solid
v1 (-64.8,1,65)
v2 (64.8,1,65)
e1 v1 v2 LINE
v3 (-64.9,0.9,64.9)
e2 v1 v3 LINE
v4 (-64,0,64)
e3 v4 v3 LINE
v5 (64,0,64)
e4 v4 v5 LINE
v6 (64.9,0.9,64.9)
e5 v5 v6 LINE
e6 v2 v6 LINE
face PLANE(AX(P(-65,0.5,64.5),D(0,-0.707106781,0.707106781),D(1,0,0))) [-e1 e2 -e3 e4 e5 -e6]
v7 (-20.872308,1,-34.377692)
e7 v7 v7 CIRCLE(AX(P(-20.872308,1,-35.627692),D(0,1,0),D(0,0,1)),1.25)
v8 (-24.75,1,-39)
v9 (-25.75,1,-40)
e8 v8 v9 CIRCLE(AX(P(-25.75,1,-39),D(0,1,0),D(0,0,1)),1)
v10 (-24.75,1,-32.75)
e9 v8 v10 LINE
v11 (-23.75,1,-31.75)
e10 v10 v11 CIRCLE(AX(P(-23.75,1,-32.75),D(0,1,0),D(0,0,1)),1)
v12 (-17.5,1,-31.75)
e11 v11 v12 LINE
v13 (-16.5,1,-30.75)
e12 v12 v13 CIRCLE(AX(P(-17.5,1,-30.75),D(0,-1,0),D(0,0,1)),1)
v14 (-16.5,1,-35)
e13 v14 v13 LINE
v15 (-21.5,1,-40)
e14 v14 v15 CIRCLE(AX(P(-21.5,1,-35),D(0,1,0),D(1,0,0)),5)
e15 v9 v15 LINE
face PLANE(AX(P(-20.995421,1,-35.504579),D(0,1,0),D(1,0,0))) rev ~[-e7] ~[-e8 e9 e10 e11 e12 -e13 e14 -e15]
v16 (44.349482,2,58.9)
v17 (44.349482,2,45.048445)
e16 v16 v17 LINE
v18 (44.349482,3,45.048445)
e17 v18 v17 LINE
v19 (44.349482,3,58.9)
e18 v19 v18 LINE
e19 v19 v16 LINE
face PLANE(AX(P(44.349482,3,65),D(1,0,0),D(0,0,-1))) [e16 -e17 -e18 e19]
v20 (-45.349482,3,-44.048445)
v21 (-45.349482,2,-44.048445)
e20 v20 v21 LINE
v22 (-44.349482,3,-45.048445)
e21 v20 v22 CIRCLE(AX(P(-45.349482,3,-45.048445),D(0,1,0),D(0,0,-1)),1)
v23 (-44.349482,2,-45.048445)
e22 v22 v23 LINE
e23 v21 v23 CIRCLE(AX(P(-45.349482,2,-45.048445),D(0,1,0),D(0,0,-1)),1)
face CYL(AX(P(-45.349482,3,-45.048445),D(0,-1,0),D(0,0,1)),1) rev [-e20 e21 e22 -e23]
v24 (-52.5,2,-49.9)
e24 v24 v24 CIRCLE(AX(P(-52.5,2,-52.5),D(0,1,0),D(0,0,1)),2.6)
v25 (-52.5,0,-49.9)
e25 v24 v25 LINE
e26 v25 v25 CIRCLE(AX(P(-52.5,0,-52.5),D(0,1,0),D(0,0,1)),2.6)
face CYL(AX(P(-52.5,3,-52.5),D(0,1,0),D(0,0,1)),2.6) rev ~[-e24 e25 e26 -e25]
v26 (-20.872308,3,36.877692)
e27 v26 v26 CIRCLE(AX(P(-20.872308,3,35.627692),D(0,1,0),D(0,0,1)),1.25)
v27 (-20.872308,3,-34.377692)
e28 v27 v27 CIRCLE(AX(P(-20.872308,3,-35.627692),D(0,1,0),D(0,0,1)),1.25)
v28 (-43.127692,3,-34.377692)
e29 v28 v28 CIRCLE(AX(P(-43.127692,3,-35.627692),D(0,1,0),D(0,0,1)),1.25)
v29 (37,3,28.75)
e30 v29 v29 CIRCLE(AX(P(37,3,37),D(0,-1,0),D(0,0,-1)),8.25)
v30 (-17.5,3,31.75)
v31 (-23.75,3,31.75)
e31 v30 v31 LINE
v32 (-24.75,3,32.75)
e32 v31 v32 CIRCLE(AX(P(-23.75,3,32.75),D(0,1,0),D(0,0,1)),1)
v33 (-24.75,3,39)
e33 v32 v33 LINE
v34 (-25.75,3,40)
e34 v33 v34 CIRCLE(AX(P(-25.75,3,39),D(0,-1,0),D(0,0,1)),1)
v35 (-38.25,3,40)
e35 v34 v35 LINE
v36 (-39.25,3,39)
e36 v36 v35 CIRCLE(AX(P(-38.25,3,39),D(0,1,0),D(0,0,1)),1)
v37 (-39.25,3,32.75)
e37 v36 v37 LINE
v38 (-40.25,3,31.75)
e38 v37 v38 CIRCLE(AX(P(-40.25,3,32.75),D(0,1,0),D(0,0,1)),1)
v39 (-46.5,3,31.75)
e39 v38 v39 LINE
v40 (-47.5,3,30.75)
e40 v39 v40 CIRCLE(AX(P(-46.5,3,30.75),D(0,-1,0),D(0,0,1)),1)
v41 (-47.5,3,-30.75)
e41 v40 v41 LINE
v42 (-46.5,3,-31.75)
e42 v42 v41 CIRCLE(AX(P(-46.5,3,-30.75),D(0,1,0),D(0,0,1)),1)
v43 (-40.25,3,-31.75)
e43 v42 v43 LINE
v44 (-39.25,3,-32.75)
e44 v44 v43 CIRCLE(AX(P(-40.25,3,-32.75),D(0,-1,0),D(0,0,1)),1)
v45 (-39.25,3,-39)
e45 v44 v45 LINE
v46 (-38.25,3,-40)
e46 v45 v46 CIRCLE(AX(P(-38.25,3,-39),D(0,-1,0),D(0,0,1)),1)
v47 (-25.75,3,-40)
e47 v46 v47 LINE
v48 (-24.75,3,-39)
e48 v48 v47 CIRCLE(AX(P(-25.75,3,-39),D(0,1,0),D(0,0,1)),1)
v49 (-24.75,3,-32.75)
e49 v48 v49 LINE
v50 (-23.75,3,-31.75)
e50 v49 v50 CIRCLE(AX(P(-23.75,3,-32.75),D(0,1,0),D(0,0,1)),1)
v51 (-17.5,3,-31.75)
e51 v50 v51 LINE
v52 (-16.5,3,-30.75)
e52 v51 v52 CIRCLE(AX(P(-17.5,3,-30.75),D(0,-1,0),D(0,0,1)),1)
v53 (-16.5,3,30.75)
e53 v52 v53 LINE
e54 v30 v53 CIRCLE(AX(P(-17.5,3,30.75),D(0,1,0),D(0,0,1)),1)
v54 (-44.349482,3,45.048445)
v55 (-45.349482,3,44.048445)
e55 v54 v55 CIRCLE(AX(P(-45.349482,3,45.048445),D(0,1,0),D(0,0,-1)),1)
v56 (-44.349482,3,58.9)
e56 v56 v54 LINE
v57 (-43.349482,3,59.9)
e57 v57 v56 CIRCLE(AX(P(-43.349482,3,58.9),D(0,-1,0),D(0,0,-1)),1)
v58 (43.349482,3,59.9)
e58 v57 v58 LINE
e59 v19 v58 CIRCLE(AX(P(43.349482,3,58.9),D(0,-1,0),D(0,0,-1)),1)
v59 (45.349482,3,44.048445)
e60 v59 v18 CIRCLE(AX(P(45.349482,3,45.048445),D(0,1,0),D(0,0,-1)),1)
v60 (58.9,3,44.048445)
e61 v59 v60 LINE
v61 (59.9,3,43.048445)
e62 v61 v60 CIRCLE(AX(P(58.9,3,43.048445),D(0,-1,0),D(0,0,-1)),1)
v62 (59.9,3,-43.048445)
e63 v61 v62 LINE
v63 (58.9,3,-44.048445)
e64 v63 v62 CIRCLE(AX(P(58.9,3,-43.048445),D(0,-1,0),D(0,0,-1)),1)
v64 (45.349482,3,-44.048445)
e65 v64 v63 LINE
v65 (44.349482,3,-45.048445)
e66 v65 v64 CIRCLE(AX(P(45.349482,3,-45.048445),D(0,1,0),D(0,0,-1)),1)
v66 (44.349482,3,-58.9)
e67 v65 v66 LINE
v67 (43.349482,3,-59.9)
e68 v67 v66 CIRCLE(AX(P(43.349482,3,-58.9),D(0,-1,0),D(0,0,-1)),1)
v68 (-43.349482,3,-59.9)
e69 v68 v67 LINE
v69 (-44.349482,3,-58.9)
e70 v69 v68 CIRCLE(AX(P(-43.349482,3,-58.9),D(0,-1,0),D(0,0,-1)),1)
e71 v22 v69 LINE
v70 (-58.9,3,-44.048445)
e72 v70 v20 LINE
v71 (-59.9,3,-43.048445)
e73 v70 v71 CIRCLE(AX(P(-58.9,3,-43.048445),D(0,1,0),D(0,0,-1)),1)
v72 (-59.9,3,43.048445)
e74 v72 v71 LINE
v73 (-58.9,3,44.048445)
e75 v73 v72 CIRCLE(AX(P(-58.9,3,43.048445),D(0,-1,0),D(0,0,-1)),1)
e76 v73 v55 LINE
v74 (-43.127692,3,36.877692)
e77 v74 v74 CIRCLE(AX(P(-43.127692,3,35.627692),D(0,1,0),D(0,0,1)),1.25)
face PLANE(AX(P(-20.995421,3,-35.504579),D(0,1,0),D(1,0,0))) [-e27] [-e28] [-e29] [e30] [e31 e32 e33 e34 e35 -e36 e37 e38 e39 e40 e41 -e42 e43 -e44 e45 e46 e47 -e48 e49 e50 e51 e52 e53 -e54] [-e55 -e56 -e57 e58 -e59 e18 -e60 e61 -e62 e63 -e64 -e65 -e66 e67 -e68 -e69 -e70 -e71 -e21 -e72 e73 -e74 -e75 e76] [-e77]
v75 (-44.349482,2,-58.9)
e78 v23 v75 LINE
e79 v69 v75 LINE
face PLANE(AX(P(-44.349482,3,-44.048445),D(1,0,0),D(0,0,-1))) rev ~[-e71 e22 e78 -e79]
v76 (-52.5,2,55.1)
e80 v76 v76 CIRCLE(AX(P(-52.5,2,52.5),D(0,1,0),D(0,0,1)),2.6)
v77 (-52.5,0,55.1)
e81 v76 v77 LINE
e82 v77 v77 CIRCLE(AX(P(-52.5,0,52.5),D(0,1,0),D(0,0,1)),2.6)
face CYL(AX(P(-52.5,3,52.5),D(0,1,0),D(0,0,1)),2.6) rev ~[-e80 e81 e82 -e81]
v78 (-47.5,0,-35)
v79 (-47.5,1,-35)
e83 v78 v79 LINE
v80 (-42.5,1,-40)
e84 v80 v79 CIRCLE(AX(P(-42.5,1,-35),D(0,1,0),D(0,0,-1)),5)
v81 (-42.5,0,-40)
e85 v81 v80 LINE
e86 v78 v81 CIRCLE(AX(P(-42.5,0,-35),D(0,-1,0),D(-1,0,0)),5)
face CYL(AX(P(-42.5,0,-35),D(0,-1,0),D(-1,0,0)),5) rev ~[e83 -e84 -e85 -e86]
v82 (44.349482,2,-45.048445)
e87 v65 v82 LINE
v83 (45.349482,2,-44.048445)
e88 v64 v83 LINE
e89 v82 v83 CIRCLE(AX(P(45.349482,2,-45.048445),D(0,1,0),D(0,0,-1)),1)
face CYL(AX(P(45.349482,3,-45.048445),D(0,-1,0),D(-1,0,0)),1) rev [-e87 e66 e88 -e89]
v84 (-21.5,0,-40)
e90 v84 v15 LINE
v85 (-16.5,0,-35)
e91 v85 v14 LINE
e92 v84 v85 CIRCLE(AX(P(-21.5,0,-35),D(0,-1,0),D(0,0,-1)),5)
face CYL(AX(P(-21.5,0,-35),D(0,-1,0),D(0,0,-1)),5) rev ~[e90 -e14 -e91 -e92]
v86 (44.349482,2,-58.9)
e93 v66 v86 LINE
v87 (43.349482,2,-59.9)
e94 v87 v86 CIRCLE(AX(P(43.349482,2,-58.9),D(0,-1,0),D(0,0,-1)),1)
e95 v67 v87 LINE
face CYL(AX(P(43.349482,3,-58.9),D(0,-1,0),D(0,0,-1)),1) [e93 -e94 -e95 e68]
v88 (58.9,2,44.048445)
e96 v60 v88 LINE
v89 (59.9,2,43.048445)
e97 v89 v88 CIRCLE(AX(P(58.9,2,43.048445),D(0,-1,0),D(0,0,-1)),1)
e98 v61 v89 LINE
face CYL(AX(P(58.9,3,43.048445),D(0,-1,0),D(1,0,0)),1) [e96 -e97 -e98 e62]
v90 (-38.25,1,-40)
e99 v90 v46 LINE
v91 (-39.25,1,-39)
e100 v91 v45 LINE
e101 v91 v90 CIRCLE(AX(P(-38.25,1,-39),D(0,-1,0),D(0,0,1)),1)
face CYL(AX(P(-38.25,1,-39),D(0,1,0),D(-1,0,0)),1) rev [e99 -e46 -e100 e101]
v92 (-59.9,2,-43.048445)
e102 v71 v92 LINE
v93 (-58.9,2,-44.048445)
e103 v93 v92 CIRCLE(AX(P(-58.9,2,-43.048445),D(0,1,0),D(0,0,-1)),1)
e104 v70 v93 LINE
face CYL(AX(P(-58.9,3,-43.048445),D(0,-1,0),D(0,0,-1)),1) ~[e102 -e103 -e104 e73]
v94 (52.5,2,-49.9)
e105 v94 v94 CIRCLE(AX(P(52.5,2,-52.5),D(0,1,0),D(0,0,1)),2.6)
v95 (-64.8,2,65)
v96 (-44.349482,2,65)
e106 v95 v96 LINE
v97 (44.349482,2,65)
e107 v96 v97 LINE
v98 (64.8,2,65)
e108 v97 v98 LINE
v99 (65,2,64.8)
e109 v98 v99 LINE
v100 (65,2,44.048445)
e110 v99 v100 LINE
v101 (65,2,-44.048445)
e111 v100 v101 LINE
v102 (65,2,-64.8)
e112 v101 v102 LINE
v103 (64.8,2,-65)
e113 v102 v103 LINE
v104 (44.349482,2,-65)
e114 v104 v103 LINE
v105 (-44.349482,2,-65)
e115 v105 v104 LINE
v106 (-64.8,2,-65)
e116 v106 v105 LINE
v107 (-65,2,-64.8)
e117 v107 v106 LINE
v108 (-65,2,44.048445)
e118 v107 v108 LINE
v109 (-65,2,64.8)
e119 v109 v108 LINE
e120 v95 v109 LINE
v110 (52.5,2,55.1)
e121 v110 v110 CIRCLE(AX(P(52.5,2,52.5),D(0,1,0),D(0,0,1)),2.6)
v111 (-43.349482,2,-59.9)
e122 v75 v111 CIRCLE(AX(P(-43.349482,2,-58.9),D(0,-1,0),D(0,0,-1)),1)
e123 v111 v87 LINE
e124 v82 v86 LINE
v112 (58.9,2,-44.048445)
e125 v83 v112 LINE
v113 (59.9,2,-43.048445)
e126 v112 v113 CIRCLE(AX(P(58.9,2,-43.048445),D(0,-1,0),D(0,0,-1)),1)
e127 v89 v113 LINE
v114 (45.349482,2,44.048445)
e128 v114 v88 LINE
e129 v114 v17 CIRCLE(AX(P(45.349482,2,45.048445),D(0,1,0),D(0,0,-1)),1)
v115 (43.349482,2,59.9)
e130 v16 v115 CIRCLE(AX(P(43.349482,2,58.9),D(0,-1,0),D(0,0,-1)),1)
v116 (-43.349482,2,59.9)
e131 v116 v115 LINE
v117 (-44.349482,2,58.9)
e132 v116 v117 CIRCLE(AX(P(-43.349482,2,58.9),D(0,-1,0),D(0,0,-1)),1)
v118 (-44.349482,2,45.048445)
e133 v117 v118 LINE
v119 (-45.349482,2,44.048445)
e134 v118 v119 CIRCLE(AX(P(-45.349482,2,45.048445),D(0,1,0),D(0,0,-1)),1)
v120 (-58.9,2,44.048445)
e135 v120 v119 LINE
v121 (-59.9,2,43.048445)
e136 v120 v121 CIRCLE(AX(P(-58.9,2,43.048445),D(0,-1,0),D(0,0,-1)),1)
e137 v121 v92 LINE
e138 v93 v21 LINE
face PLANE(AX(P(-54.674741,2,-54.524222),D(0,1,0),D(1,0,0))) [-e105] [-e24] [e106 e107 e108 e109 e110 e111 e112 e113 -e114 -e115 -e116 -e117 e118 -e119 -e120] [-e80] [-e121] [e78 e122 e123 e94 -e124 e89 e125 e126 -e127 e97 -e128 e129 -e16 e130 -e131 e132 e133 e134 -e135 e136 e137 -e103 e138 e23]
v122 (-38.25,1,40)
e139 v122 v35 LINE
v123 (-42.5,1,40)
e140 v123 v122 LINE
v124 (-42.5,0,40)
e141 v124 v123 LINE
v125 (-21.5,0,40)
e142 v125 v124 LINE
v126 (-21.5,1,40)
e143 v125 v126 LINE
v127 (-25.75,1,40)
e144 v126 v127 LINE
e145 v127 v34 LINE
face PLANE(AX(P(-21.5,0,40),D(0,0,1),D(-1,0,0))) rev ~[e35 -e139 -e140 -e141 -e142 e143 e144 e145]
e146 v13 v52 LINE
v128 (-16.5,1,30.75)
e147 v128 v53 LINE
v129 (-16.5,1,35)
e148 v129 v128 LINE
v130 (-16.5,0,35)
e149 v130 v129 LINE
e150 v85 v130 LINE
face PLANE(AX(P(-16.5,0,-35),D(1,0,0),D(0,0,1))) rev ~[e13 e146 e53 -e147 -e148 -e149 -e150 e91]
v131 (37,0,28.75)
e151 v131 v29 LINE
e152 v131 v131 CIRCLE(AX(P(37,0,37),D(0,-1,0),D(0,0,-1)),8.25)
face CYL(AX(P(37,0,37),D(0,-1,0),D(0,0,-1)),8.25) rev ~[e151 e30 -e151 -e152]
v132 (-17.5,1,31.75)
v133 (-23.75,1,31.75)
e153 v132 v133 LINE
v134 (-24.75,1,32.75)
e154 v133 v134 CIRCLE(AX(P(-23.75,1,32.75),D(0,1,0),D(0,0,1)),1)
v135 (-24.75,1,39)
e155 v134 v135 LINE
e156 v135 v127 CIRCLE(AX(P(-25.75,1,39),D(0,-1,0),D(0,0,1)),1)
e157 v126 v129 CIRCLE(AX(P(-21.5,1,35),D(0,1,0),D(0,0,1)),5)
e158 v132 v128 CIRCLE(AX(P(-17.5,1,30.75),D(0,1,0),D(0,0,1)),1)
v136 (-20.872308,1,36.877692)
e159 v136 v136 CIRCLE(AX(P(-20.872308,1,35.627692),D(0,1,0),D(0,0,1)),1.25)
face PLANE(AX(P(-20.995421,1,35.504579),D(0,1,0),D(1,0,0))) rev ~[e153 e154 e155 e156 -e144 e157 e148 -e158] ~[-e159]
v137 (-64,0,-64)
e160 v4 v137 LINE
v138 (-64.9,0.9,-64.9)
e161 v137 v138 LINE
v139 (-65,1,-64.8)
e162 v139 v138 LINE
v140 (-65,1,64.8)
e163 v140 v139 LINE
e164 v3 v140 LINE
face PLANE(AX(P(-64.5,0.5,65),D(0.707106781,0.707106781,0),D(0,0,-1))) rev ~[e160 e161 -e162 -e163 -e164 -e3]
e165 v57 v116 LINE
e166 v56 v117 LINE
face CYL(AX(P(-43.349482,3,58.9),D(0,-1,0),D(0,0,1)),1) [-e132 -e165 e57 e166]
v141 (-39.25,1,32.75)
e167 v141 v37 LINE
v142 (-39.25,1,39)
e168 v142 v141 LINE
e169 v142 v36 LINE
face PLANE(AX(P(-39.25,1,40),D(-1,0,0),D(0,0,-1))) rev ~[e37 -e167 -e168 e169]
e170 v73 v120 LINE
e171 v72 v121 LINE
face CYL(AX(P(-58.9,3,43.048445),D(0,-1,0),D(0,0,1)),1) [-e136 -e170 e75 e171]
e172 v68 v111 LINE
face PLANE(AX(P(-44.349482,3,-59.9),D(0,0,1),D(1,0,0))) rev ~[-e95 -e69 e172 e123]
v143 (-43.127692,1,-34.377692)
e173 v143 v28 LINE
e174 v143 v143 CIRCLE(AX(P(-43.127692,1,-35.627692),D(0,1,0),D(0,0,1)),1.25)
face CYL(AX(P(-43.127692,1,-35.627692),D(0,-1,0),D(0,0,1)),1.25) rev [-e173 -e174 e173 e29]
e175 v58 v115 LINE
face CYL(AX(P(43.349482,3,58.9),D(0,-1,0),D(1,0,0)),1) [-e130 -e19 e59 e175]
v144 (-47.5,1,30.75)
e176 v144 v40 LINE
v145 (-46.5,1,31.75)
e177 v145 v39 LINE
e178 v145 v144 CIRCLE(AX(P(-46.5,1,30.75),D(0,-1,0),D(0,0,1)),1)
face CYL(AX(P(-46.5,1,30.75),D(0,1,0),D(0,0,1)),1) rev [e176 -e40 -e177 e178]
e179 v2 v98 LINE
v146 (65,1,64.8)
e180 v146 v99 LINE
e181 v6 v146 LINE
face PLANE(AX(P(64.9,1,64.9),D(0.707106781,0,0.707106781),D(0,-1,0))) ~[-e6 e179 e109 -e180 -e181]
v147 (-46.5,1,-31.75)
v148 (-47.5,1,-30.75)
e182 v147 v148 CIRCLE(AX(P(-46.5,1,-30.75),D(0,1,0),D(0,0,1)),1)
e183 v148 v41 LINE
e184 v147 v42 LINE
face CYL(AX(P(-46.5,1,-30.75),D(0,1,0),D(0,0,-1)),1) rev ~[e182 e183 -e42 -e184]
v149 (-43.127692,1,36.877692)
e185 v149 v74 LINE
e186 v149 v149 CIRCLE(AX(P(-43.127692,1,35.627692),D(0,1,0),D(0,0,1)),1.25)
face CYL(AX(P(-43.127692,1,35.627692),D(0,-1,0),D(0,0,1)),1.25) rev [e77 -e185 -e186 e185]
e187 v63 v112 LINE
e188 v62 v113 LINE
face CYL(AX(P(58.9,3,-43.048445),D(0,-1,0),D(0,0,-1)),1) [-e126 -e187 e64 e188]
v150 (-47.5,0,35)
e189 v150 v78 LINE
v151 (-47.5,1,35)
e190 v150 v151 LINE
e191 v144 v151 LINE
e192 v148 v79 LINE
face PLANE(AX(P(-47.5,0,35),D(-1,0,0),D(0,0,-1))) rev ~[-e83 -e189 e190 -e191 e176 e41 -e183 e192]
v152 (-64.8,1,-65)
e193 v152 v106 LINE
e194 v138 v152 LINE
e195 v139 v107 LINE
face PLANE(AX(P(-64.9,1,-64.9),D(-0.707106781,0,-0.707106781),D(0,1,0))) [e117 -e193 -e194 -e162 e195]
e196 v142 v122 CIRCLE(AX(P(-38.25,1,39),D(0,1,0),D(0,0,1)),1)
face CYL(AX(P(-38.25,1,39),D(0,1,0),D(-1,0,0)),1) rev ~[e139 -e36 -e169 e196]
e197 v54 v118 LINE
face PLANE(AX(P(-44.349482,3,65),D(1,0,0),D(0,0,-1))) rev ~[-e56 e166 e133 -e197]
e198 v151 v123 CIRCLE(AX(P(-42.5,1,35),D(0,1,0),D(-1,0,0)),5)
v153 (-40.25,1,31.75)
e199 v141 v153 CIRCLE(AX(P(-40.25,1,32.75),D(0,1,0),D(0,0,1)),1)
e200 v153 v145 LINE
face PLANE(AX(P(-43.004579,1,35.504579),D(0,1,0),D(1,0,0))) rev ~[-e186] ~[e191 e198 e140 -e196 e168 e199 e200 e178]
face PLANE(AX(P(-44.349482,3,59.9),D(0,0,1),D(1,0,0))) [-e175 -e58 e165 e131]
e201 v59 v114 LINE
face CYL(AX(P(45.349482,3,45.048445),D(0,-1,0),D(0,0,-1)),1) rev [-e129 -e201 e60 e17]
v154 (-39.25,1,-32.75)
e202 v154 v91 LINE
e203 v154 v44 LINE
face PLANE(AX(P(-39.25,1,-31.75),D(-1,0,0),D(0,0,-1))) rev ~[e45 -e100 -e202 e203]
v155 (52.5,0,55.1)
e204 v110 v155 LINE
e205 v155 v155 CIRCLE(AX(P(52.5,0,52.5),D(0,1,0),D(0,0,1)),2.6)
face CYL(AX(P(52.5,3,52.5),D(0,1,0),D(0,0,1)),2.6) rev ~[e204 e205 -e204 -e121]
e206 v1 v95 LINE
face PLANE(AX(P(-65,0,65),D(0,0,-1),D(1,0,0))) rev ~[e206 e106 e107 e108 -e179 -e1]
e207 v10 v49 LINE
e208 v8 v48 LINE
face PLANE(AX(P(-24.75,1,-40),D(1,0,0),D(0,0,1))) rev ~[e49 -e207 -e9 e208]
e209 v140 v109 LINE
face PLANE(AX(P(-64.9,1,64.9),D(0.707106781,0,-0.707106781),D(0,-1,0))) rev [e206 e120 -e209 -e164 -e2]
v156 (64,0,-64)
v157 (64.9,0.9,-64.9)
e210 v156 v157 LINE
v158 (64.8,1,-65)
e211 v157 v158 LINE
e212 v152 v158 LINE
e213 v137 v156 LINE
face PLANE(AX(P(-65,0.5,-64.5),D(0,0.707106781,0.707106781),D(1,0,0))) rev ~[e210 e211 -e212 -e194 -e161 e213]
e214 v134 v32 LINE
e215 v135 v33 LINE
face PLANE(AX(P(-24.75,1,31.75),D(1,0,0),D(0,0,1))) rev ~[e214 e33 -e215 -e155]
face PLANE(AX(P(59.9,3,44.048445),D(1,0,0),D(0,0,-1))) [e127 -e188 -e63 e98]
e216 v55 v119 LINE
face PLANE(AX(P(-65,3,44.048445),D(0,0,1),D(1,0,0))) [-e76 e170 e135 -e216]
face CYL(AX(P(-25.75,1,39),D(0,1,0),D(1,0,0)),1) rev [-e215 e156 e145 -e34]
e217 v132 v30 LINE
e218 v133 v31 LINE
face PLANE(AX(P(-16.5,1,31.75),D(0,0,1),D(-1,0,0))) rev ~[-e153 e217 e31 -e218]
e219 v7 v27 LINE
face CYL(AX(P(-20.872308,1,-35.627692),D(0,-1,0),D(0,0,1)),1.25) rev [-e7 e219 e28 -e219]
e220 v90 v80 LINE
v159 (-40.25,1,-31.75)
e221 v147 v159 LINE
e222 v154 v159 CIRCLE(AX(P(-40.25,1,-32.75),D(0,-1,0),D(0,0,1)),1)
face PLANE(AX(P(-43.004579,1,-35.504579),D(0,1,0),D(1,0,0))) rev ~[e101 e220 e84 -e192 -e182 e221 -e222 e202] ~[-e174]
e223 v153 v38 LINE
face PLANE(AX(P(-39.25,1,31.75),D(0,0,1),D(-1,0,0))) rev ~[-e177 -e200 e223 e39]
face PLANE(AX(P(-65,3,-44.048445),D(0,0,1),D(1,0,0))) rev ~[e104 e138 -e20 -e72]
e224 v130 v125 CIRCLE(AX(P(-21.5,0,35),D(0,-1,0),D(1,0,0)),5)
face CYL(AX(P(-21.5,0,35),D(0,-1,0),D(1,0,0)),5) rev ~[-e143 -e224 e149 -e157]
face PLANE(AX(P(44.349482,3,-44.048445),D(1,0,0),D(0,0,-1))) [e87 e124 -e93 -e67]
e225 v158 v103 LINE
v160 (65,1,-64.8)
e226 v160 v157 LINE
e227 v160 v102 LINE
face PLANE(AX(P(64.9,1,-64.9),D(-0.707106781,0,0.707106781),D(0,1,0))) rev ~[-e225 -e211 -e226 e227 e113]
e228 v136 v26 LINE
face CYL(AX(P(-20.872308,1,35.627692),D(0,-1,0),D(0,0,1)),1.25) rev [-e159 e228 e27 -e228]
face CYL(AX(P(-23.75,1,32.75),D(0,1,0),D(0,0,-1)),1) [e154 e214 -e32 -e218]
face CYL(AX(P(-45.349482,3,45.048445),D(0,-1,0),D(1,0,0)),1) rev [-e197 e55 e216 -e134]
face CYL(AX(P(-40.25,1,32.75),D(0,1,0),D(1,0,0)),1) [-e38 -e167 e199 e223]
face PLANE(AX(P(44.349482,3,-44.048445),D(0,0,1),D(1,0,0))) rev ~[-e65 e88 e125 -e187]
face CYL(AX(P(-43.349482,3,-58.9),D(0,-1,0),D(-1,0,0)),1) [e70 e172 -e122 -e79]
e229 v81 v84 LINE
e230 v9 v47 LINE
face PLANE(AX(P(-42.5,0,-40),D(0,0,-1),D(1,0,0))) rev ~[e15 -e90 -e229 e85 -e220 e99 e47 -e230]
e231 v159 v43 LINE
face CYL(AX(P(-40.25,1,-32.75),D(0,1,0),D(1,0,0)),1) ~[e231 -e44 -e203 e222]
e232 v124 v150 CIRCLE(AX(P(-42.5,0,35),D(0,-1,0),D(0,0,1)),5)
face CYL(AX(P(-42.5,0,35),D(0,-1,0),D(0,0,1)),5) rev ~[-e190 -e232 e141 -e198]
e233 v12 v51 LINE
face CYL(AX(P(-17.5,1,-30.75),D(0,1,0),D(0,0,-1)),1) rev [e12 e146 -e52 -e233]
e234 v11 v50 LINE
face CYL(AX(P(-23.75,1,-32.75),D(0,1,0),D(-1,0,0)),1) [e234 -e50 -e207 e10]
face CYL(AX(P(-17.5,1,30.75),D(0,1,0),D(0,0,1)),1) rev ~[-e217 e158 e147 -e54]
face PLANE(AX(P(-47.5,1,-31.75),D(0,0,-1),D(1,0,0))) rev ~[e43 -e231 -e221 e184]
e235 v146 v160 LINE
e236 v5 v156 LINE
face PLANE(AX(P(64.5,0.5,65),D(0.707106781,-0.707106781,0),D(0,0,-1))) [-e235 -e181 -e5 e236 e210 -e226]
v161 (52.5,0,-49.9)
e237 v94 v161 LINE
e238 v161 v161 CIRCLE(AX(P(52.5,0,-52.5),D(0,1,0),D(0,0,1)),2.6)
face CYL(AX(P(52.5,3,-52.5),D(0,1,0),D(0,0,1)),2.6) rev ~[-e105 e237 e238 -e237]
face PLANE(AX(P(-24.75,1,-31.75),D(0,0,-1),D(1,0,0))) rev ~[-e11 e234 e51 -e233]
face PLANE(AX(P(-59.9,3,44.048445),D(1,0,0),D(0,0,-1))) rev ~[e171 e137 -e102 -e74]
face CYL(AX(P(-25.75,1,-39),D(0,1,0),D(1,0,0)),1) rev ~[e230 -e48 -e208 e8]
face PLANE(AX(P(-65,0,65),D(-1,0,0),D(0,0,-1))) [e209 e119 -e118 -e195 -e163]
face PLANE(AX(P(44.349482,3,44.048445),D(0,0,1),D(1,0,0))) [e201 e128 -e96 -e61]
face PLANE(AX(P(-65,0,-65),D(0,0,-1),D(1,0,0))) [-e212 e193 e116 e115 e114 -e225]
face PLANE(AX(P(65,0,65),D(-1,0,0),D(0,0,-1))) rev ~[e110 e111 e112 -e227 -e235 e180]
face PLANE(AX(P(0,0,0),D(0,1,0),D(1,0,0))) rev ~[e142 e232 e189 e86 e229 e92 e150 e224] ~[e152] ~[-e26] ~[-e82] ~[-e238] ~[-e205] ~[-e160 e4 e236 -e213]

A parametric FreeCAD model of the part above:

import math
import FreeCAD as App
import Part
import Sketcher


def edges_at(feature, points):
    """Names of the edges that pass closest to the given points."""
    edges = feature.Shape.Edges
    near = lambda p: min(range(len(edges)), key=lambda i: edges[i].distToShape(Part.Vertex(*p))[0])
    return sorted({f"Edge{near(p) + 1}" for p in points})

doc = App.newDocument("Part")
body = doc.addObject("PartDesign::Body", "Body")

sketch1 = body.newObject("Sketcher::SketchObject", "Sketch")
sketch1.AttachmentSupport = (doc.getObject("XZ_Plane"), [""])
sketch1.MapMode = "FlatFace"
sketch1.addGeometry([
    Part.LineSegment(App.Vector(-65, -65, 0), App.Vector(-65, 65, 0)),
    Part.LineSegment(App.Vector(-65, 65, 0), App.Vector(65, 65, 0)),
    Part.LineSegment(App.Vector(65, 65, 0), App.Vector(65, -65, 0)),
    Part.LineSegment(App.Vector(65, -65, 0), App.Vector(-65, -65, 0)),
], False)
sketch1.addConstraint([
    Sketcher.Constraint("Coincident", 0, 2, 1, 1),
    Sketcher.Constraint("Coincident", 1, 2, 2, 1),
    Sketcher.Constraint("Coincident", 2, 2, 3, 1),
    Sketcher.Constraint("Coincident", 3, 2, 0, 1),
    Sketcher.Constraint("Vertical", 0),
    Sketcher.Constraint("Horizontal", 1),
    Sketcher.Constraint("Vertical", 2),
    Sketcher.Constraint("Horizontal", 3),
    Sketcher.Constraint("Symmetric", 0, 2, 2, 2, -1, 1),
    Sketcher.Constraint("Equal", 3, 0),
    Sketcher.Constraint("DistanceX", 1, 1, 1, 2, 130.0),
])
pad1 = body.newObject("PartDesign::Pad", "Pad")
pad1.Profile = sketch1
pad1.Length = 3
pad1.Reversed = True

sketch2 = body.newObject("Sketcher::SketchObject", "Sketch001")
sketch2.AttachmentSupport = (doc.getObject("XZ_Plane"), [""])
sketch2.MapMode = "FlatFace"
sketch2.AttachmentOffset = App.Placement(App.Vector(0, 0, -3), App.Rotation())
sketch2.addGeometry([
    Part.Circle(App.Vector(52.5, -52.5, 0), App.Vector(0, 0, 1), 2.6),
    Part.Circle(App.Vector(52.5, 52.5, 0), App.Vector(0, 0, 1), 2.6),
    Part.Circle(App.Vector(-52.5, 52.5, 0), App.Vector(0, 0, 1), 2.6),
    Part.Circle(App.Vector(-52.5, -52.5, 0), App.Vector(0, 0, 1), 2.6),
], False)
sketch2.addConstraint([
    Sketcher.Constraint("Equal", 0, 1),
    Sketcher.Constraint("Equal", 1, 2),
    Sketcher.Constraint("Equal", 2, 3),
    Sketcher.Constraint("Symmetric", 0, 3, 2, 3, -1, 1),
    Sketcher.Constraint("Symmetric", 1, 3, 3, 3, -1, 1),
    Sketcher.Constraint("Symmetric", 1, 3, 2, 3, -2),
    Sketcher.Constraint("Diameter", 0, 5.2),
    Sketcher.Constraint("DistanceY", 0, 3, 1, 3, 105.0),
    Sketcher.Constraint("DistanceX", 2, 3, 1, 3, 105.0),
])
pocket1 = body.newObject("PartDesign::Pocket", "Pocket")
pocket1.Profile = sketch2
pocket1.Type = "ThroughAll"
pocket1.Reversed = True

sketch3 = body.newObject("Sketcher::SketchObject", "Sketch002")
sketch3.AttachmentSupport = (doc.getObject("XZ_Plane"), [""])
sketch3.MapMode = "FlatFace"
sketch3.AttachmentOffset = App.Placement(App.Vector(0, 0, -3), App.Rotation())
sketch3.addGeometry([
    Part.LineSegment(App.Vector(44, -65, 0), App.Vector(44, -44, 0)),
    Part.LineSegment(App.Vector(44, -44, 0), App.Vector(65, -44, 0)),
    Part.LineSegment(App.Vector(65, -44, 0), App.Vector(65, -65, 0)),
    Part.LineSegment(App.Vector(65, -65, 0), App.Vector(44, -65, 0)),
    Part.LineSegment(App.Vector(-65, 44, 0), App.Vector(-65, 65, 0)),
    Part.LineSegment(App.Vector(-65, 65, 0), App.Vector(-44, 65, 0)),
    Part.LineSegment(App.Vector(-44, 65, 0), App.Vector(-44, 44, 0)),
    Part.LineSegment(App.Vector(-44, 44, 0), App.Vector(-65, 44, 0)),
    Part.LineSegment(App.Vector(44, 44, 0), App.Vector(44, 65, 0)),
    Part.LineSegment(App.Vector(44, 65, 0), App.Vector(65, 65, 0)),
    Part.LineSegment(App.Vector(65, 65, 0), App.Vector(65, 44, 0)),
    Part.LineSegment(App.Vector(65, 44, 0), App.Vector(44, 44, 0)),
    Part.LineSegment(App.Vector(-65, -65, 0), App.Vector(-65, -44, 0)),
    Part.LineSegment(App.Vector(-65, -44, 0), App.Vector(-44, -44, 0)),
    Part.LineSegment(App.Vector(-44, -44, 0), App.Vector(-44, -65, 0)),
    Part.LineSegment(App.Vector(-44, -65, 0), App.Vector(-65, -65, 0)),
], False)
sketch3.addConstraint([
    Sketcher.Constraint("Coincident", 0, 2, 1, 1),
    Sketcher.Constraint("Coincident", 1, 2, 2, 1),
    Sketcher.Constraint("Coincident", 2, 2, 3, 1),
    Sketcher.Constraint("Coincident", 3, 2, 0, 1),
    Sketcher.Constraint("Coincident", 4, 2, 5, 1),
    Sketcher.Constraint("Coincident", 5, 2, 6, 1),
    Sketcher.Constraint("Coincident", 6, 2, 7, 1),
    Sketcher.Constraint("Coincident", 7, 2, 4, 1),
    Sketcher.Constraint("Coincident", 8, 2, 9, 1),
    Sketcher.Constraint("Coincident", 9, 2, 10, 1),
    Sketcher.Constraint("Coincident", 10, 2, 11, 1),
    Sketcher.Constraint("Coincident", 11, 2, 8, 1),
    Sketcher.Constraint("Coincident", 12, 2, 13, 1),
    Sketcher.Constraint("Coincident", 13, 2, 14, 1),
    Sketcher.Constraint("Coincident", 14, 2, 15, 1),
    Sketcher.Constraint("Coincident", 15, 2, 12, 1),
    Sketcher.Constraint("Vertical", 0),
    Sketcher.Constraint("Horizontal", 1),
    Sketcher.Constraint("Vertical", 2),
    Sketcher.Constraint("Horizontal", 3),
    Sketcher.Constraint("Vertical", 4),
    Sketcher.Constraint("Horizontal", 5),
    Sketcher.Constraint("Vertical", 6),
    Sketcher.Constraint("Horizontal", 7),
    Sketcher.Constraint("Vertical", 8),
    Sketcher.Constraint("Horizontal", 9),
    Sketcher.Constraint("Vertical", 10),
    Sketcher.Constraint("Horizontal", 11),
    Sketcher.Constraint("Vertical", 12),
    Sketcher.Constraint("Horizontal", 13),
    Sketcher.Constraint("Vertical", 14),
    Sketcher.Constraint("Horizontal", 15),
    Sketcher.Constraint("Symmetric", 2, 2, 4, 2, -1, 1),
    Sketcher.Constraint("Symmetric", 0, 2, 6, 2, -1, 1),
    Sketcher.Constraint("Symmetric", 10, 2, 12, 2, -1, 1),
    Sketcher.Constraint("Symmetric", 8, 2, 14, 2, -1, 1),
    Sketcher.Constraint("Symmetric", 5, 2, 8, 2, -2),
    Sketcher.Constraint("Symmetric", 7, 2, 10, 2, -2),
    Sketcher.Constraint("DistanceX", -1, 1, 1, 2, 65.0),
    Sketcher.Constraint("DistanceY", 2, 2, -1, 1, 65.0),
    Sketcher.Constraint("DistanceX", 1, 1, 1, 2, 20.650518),
    Sketcher.Constraint("DistanceY", 0, 1, 0, 2, 20.951555),
])
pocket2 = body.newObject("PartDesign::Pocket", "Pocket001")
pocket2.Profile = sketch3
pocket2.Length = 1
pocket2.Reversed = True

sketch4 = body.newObject("Sketcher::SketchObject", "Sketch003")
sketch4.AttachmentSupport = (doc.getObject("XZ_Plane"), [""])
sketch4.MapMode = "FlatFace"
sketch4.AttachmentOffset = App.Placement(App.Vector(0, 0, -3), App.Rotation())
sketch4.addGeometry([
    Part.LineSegment(App.Vector(-44, -65, 0), App.Vector(-44, -60, 0)),
    Part.LineSegment(App.Vector(-44, -60, 0), App.Vector(44, -60, 0)),
    Part.LineSegment(App.Vector(44, -60, 0), App.Vector(44, -65, 0)),
    Part.LineSegment(App.Vector(44, -65, 0), App.Vector(-44, -65, 0)),
    Part.LineSegment(App.Vector(60, -44, 0), App.Vector(60, 44, 0)),
    Part.LineSegment(App.Vector(60, 44, 0), App.Vector(65, 44, 0)),
    Part.LineSegment(App.Vector(65, 44, 0), App.Vector(65, -44, 0)),
    Part.LineSegment(App.Vector(65, -44, 0), App.Vector(60, -44, 0)),
    Part.LineSegment(App.Vector(-44, 60, 0), App.Vector(-44, 65, 0)),
    Part.LineSegment(App.Vector(-44, 65, 0), App.Vector(44, 65, 0)),
    Part.LineSegment(App.Vector(44, 65, 0), App.Vector(44, 60, 0)),
    Part.LineSegment(App.Vector(44, 60, 0), App.Vector(-44, 60, 0)),
    Part.LineSegment(App.Vector(-65, -44, 0), App.Vector(-65, 44, 0)),
    Part.LineSegment(App.Vector(-65, 44, 0), App.Vector(-60, 44, 0)),
    Part.LineSegment(App.Vector(-60, 44, 0), App.Vector(-60, -44, 0)),
    Part.LineSegment(App.Vector(-60, -44, 0), App.Vector(-65, -44, 0)),
], False)
sketch4.addConstraint([
    Sketcher.Constraint("Coincident", 0, 2, 1, 1),
    Sketcher.Constraint("Coincident", 1, 2, 2, 1),
    Sketcher.Constraint("Coincident", 2, 2, 3, 1),
    Sketcher.Constraint("Coincident", 3, 2, 0, 1),
    Sketcher.Constraint("Coincident", 4, 2, 5, 1),
    Sketcher.Constraint("Coincident", 5, 2, 6, 1),
    Sketcher.Constraint("Coincident", 6, 2, 7, 1),
    Sketcher.Constraint("Coincident", 7, 2, 4, 1),
    Sketcher.Constraint("Coincident", 8, 2, 9, 1),
    Sketcher.Constraint("Coincident", 9, 2, 10, 1),
    Sketcher.Constraint("Coincident", 10, 2, 11, 1),
    Sketcher.Constraint("Coincident", 11, 2, 8, 1),
    Sketcher.Constraint("Coincident", 12, 2, 13, 1),
    Sketcher.Constraint("Coincident", 13, 2, 14, 1),
    Sketcher.Constraint("Coincident", 14, 2, 15, 1),
    Sketcher.Constraint("Coincident", 15, 2, 12, 1),
    Sketcher.Constraint("Vertical", 0),
    Sketcher.Constraint("Horizontal", 1),
    Sketcher.Constraint("Vertical", 2),
    Sketcher.Constraint("Horizontal", 3),
    Sketcher.Constraint("Vertical", 4),
    Sketcher.Constraint("Horizontal", 5),
    Sketcher.Constraint("Vertical", 6),
    Sketcher.Constraint("Horizontal", 7),
    Sketcher.Constraint("Vertical", 8),
    Sketcher.Constraint("Horizontal", 9),
    Sketcher.Constraint("Vertical", 10),
    Sketcher.Constraint("Horizontal", 11),
    Sketcher.Constraint("Vertical", 12),
    Sketcher.Constraint("Horizontal", 13),
    Sketcher.Constraint("Vertical", 14),
    Sketcher.Constraint("Horizontal", 15),
    Sketcher.Constraint("Symmetric", 2, 2, 8, 2, -1, 1),
    Sketcher.Constraint("Symmetric", 0, 2, 10, 2, -1, 1),
    Sketcher.Constraint("Symmetric", 6, 2, 12, 2, -1, 1),
    Sketcher.Constraint("Symmetric", 4, 2, 14, 2, -1, 1),
    Sketcher.Constraint("Horizontal", 5, 2, 12, 2),
    Sketcher.Constraint("Vertical", 3, 2, 8, 2),
    Sketcher.Constraint("Equal", 15, 0),
    Sketcher.Constraint("DistanceX", 5, 1, 5, 2, 5.1),
    Sketcher.Constraint("DistanceY", 2, 2, -1, 1, 65.0),
    Sketcher.Constraint("DistanceX", -1, 1, 5, 2, 65.0),
    Sketcher.Constraint("DistanceY", 4, 1, 4, 2, 88.09689),
    Sketcher.Constraint("DistanceX", 1, 1, 1, 2, 88.698963),
])
pocket3 = body.newObject("PartDesign::Pocket", "Pocket002")
pocket3.Profile = sketch4
pocket3.Length = 1
pocket3.Reversed = True

sketch5 = body.newObject("Sketcher::SketchObject", "Sketch004")
sketch5.AttachmentSupport = (doc.getObject("XZ_Plane"), [""])
sketch5.MapMode = "FlatFace"
sketch5.addGeometry([
    Part.LineSegment(App.Vector(-48, 35, 0), App.Vector(-48, -35, 0)),
    Part.ArcOfCircle(Part.Circle(App.Vector(-42, -35, 0), App.Vector(0, 0, 1), 5), math.radians(180), math.radians(270)),
    Part.LineSegment(App.Vector(-42, -40, 0), App.Vector(-22, -40, 0)),
    Part.ArcOfCircle(Part.Circle(App.Vector(-22, -35, 0), App.Vector(0, 0, 1), 5), math.radians(-90), math.radians(0)),
    Part.LineSegment(App.Vector(-16, -35, 0), App.Vector(-16, 35, 0)),
    Part.ArcOfCircle(Part.Circle(App.Vector(-22, 35, 0), App.Vector(0, 0, 1), 5), math.radians(0), math.radians(90)),
    Part.LineSegment(App.Vector(-22, 40, 0), App.Vector(-42, 40, 0)),
    Part.ArcOfCircle(Part.Circle(App.Vector(-42, 35, 0), App.Vector(0, 0, 1), 5), math.radians(90), math.radians(180)),
], False)
sketch5.addConstraint([
    Sketcher.Constraint("Tangent", 0, 2, 1, 1),
    Sketcher.Constraint("Tangent", 1, 2, 2, 1),
    Sketcher.Constraint("Tangent", 2, 2, 3, 1),
    Sketcher.Constraint("Tangent", 3, 2, 4, 1),
    Sketcher.Constraint("Tangent", 4, 2, 5, 1),
    Sketcher.Constraint("Tangent", 5, 2, 6, 1),
    Sketcher.Constraint("Tangent", 6, 2, 7, 1),
    Sketcher.Constraint("Tangent", 7, 2, 0, 1),
    Sketcher.Constraint("Vertical", 0),
    Sketcher.Constraint("Horizontal", 2),
    Sketcher.Constraint("Vertical", 4),
    Sketcher.Constraint("Horizontal", 6),
    Sketcher.Constraint("Equal", 1, 3),
    Sketcher.Constraint("Equal", 3, 5),
    Sketcher.Constraint("Equal", 5, 7),
    Sketcher.Constraint("Radius", 1, 5.0),
    Sketcher.Constraint("DistanceX", 2, 1, 2, 2, 21.0),
    Sketcher.Constraint("DistanceY", 0, 2, 0, 1, 70.0),
    Sketcher.Constraint("DistanceY", 1, 3, -1, 1, 35.0),
    Sketcher.Constraint("DistanceX", 1, 3, -1, 1, 42.5),
])
pocket4 = body.newObject("PartDesign::Pocket", "Pocket003")
pocket4.Profile = sketch5
pocket4.Length = 3

sketch6 = body.newObject("Sketcher::SketchObject", "Sketch005")
sketch6.AttachmentSupport = (doc.getObject("XZ_Plane"), [""])
sketch6.MapMode = "FlatFace"
sketch6.AttachmentOffset = App.Placement(App.Vector(0, 0, -1), App.Rotation())
sketch6.addGeometry([
    Part.LineSegment(App.Vector(-24.8, -40, 0), App.Vector(-24.8, -31.8, 0)),
    Part.LineSegment(App.Vector(-24.8, -31.8, 0), App.Vector(-16.5, -31.8, 0)),
    Part.LineSegment(App.Vector(-16.5, -31.8, 0), App.Vector(-16.5, -35, 0)),
    Part.ArcOfCircle(Part.Circle(App.Vector(-21.5, -35, 0), App.Vector(0, 0, 1), 5), math.radians(-90), math.radians(0)),
    Part.LineSegment(App.Vector(-21.5, -40, 0), App.Vector(-24.8, -40, 0)),
    Part.Circle(App.Vector(-20.9, -35.6, 0), App.Vector(0, 0, 1), 1.2),
    Part.LineSegment(App.Vector(-16.5, 31.8, 0), App.Vector(-24.8, 31.8, 0)),
    Part.LineSegment(App.Vector(-24.8, 31.8, 0), App.Vector(-24.8, 40, 0)),
    Part.LineSegment(App.Vector(-24.8, 40, 0), App.Vector(-21.5, 40, 0)),
    Part.ArcOfCircle(Part.Circle(App.Vector(-21.5, 35, 0), App.Vector(0, 0, 1), 5), math.radians(0), math.radians(90)),
    Part.LineSegment(App.Vector(-16.5, 35, 0), App.Vector(-16.5, 31.8, 0)),
    Part.Circle(App.Vector(-20.9, 35.6, 0), App.Vector(0, 0, 1), 1.2),
    Part.LineSegment(App.Vector(-39.2, 40, 0), App.Vector(-39.2, 31.8, 0)),
    Part.LineSegment(App.Vector(-39.2, 31.8, 0), App.Vector(-47.5, 31.8, 0)),
    Part.LineSegment(App.Vector(-47.5, 31.8, 0), App.Vector(-47.5, 35, 0)),
    Part.ArcOfCircle(Part.Circle(App.Vector(-42.5, 35, 0), App.Vector(0, 0, 1), 5), math.radians(90), math.radians(180)),
    Part.LineSegment(App.Vector(-42.5, 40, 0), App.Vector(-39.2, 40, 0)),
    Part.Circle(App.Vector(-43.1, 35.6, 0), App.Vector(0, 0, 1), 1.2),
    Part.LineSegment(App.Vector(-47.5, -31.8, 0), App.Vector(-39.2, -31.8, 0)),
    Part.LineSegment(App.Vector(-39.2, -31.8, 0), App.Vector(-39.2, -40, 0)),
    Part.LineSegment(App.Vector(-39.2, -40, 0), App.Vector(-42.5, -40, 0)),
    Part.ArcOfCircle(Part.Circle(App.Vector(-42.5, -35, 0), App.Vector(0, 0, 1), 5), math.radians(180), math.radians(270)),
    Part.LineSegment(App.Vector(-47.5, -35, 0), App.Vector(-47.5, -31.8, 0)),
    Part.Circle(App.Vector(-43.1, -35.6, 0), App.Vector(0, 0, 1), 1.2),
], False)
sketch6.addConstraint([
    Sketcher.Constraint("Coincident", 0, 2, 1, 1),
    Sketcher.Constraint("Coincident", 1, 2, 2, 1),
    Sketcher.Constraint("Tangent", 2, 2, 3, 2),
    Sketcher.Constraint("Tangent", 3, 1, 4, 1),
    Sketcher.Constraint("Coincident", 4, 2, 0, 1),
    Sketcher.Constraint("Coincident", 6, 2, 7, 1),
    Sketcher.Constraint("Coincident", 7, 2, 8, 1),
    Sketcher.Constraint("Tangent", 8, 2, 9, 2),
    Sketcher.Constraint("Tangent", 9, 1, 10, 1),
    Sketcher.Constraint("Coincident", 10, 2, 6, 1),
    Sketcher.Constraint("Coincident", 12, 2, 13, 1),
    Sketcher.Constraint("Coincident", 13, 2, 14, 1),
    Sketcher.Constraint("Tangent", 14, 2, 15, 2),
    Sketcher.Constraint("Tangent", 15, 1, 16, 1),
    Sketcher.Constraint("Coincident", 16, 2, 12, 1),
    Sketcher.Constraint("Coincident", 18, 2, 19, 1),
    Sketcher.Constraint("Coincident", 19, 2, 20, 1),
    Sketcher.Constraint("Tangent", 20, 2, 21, 2),
    Sketcher.Constraint("Tangent", 21, 1, 22, 1),
    Sketcher.Constraint("Coincident", 22, 2, 18, 1),
    Sketcher.Constraint("Vertical", 0),
    Sketcher.Constraint("Horizontal", 1),
    Sketcher.Constraint("Vertical", 2),
    Sketcher.Constraint("Horizontal", 4),
    Sketcher.Constraint("Horizontal", 6),
    Sketcher.Constraint("Vertical", 7),
    Sketcher.Constraint("Horizontal", 8),
    Sketcher.Constraint("Vertical", 10),
    Sketcher.Constraint("Vertical", 12),
    Sketcher.Constraint("Horizontal", 13),
    Sketcher.Constraint("Vertical", 14),
    Sketcher.Constraint("Horizontal", 16),
    Sketcher.Constraint("Horizontal", 18),
    Sketcher.Constraint("Vertical", 19),
    Sketcher.Constraint("Horizontal", 20),
    Sketcher.Constraint("Vertical", 22),
    Sketcher.Constraint("Equal", 3, 9),
    Sketcher.Constraint("Equal", 5, 11),
    Sketcher.Constraint("Equal", 9, 15),
    Sketcher.Constraint("Equal", 11, 17),
    Sketcher.Constraint("Equal", 15, 21),
    Sketcher.Constraint("Equal", 17, 23),
    Sketcher.Constraint("Symmetric", 3, 3, 9, 3, -1),
    Sketcher.Constraint("Symmetric", 5, 3, 11, 3, -1),
    Sketcher.Constraint("Symmetric", 15, 3, 21, 3, -1),
    Sketcher.Constraint("Symmetric", 17, 3, 23, 3, -1),
    Sketcher.Constraint("Symmetric", 0, 2, 6, 2, -1),
    Sketcher.Constraint("Symmetric", 12, 2, 18, 2, -1),
    Sketcher.Constraint("Horizontal", 9, 3, 15, 3),
    Sketcher.Constraint("Horizontal", 11, 3, 17, 3),
    Sketcher.Constraint("Horizontal", 10, 2, 12, 2),
    Sketcher.Constraint("Equal", 6, 13),
    Sketcher.Constraint("Equal", 18, 0),
    Sketcher.Constraint("Radius", 3, 5.0),
    Sketcher.Constraint("Diameter", 5, 2.5),
    Sketcher.Constraint("DistanceY", 3, 3, -1, 1, 35.0),
    Sketcher.Constraint("DistanceX", 15, 3, 9, 3, 21.0),
    Sketcher.Constraint("DistanceX", 1, 1, 1, 2, 8.25),
    Sketcher.Constraint("DistanceX", 3, 3, -1, 1, 21.5),
    Sketcher.Constraint("DistanceX", 5, 3, -1, 1, 20.872308),
    Sketcher.Constraint("DistanceY", 5, 3, -1, 1, 35.627692),
    Sketcher.Constraint("DistanceX", 17, 3, -1, 1, 43.127692),
])
pad2 = body.newObject("PartDesign::Pad", "Pad001")
pad2.Profile = sketch6
pad2.Length = 2
pad2.Reversed = True
doc.recompute()

fillet = body.newObject("PartDesign::Fillet", "Fillet")
fillet.Base = (pad2, edges_at(pad2, [
    (-24.75, 2, -31.75),
    (-39.25, 2, -31.75),
    (-39.25, 2, 31.75),
    (-24.75, 2, 31.75),
]))
fillet.Radius = 1

sketch7 = body.newObject("Sketcher::SketchObject", "Sketch006")
sketch7.AttachmentSupport = (doc.getObject("XZ_Plane"), [""])
sketch7.MapMode = "FlatFace"
sketch7.addGeometry(Part.Circle(App.Vector(37, 37, 0), App.Vector(0, 0, 1), 8), False)
sketch7.addConstraint([
    Sketcher.Constraint("Diameter", 0, 16.5),
    Sketcher.Constraint("DistanceX", -1, 1, 0, 3, 37.0),
    Sketcher.Constraint("DistanceY", -1, 1, 0, 3, 37.0),
])
pocket5 = body.newObject("PartDesign::Pocket", "Pocket004")
pocket5.Profile = sketch7
pocket5.Type = "ThroughAll"
doc.recompute()

chamfer = body.newObject("PartDesign::Chamfer", "Chamfer")
chamfer.Base = (pocket5, edges_at(pocket5, [
    (0, 0, 65),
    (-65, 0, 0),
    (0, 0, -65),
    (65, 0, 0),
]))
chamfer.Size = 1
doc.recompute()

chamfer2 = body.newObject("PartDesign::Chamfer", "Chamfer001")
chamfer2.Base = (chamfer, edges_at(chamfer, [
    (65, 1.5, 65),
    (-65, 1.5, 65),
    (-65, 1.5, -65),
    (65, 1.5, -65),
]))
chamfer2.Size = 0.2
doc.recompute()

fillet2 = body.newObject("PartDesign::Fillet", "Fillet001")
fillet2.Base = (chamfer2, edges_at(chamfer2, [
    (59.9, 2.5, 44.048),
    (59.9, 2.5, -44.048),
    (-44.349, 2.5, -59.9),
    (44.349, 2.5, -59.9),
    (44.349, 2.5, 59.9),
    (-44.349, 2.5, 59.9),
    (-59.9, 2.5, 44.048),
    (-59.9, 2.5, -44.048),
    (-44.349, 2.5, -44.048),
    (-44.349, 2.5, 44.048),
    (44.349, 2.5, 44.048),
    (44.349, 2.5, -44.048),
]))
fillet2.Radius = 1
doc.recompute()

fillet3 = body.newObject("PartDesign::Fillet", "Fillet002")
fillet3.Base = (fillet2, edges_at(fillet2, [
    (-24.75, 2, -40),
    (-16.5, 2, -31.75),
    (-47.5, 2, -31.75),
    (-39.25, 2, -40),
    (-39.25, 2, 40),
    (-47.5, 2, 31.75),
    (-16.5, 2, 31.75),
    (-24.75, 2, 40),
]))
fillet3.Radius = 1

doc.recompute()
